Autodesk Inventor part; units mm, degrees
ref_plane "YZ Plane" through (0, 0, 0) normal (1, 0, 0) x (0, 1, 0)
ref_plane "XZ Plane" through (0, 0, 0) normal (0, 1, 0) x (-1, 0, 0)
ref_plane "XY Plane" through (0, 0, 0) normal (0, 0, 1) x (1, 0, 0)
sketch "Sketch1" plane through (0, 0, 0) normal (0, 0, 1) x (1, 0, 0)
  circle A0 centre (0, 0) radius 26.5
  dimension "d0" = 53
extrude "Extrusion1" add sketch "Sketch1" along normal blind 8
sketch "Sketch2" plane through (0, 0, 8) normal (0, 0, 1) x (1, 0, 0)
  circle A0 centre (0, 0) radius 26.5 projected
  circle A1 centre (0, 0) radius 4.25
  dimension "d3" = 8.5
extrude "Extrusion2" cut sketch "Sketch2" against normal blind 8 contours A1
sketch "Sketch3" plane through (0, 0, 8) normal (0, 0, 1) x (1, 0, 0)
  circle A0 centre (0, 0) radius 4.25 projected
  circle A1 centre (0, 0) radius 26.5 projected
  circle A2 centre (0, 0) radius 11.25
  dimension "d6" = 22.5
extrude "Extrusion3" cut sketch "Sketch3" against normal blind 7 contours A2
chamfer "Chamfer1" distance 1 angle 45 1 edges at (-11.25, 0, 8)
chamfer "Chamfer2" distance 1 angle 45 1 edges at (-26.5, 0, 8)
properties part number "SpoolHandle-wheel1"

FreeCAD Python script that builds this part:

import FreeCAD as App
import Part
import Sketcher

V = App.Vector


def edges_at(feature, points):
    """Names of the edges that pass closest to the given points."""
    edges = feature.Shape.Edges
    near = lambda p: min(range(len(edges)), key=lambda i: edges[i].distToShape(Part.Vertex(*p))[0])
    return sorted({f"Edge{near(p) + 1}" for p in points})

doc = App.newDocument("Part")
body = doc.addObject("PartDesign::Body", "Body")

# Sketch on XY plane
sketch1 = body.newObject("Sketcher::SketchObject", "Sketch")
sketch1.AttachmentSupport = (doc.getObject("XY_Plane"), [""])
sketch1.MapMode = "FlatFace"
sketch1.addGeometry(Part.Circle(V(0, 0, 0), V(0, 0, 1), 26), False)
sketch1.addConstraint(Sketcher.Constraint("Coincident", 0, 3, -1, 1))
sketch1.addConstraint(Sketcher.Constraint("Diameter", 0, 53.0))
pad1 = body.newObject("PartDesign::Pad", "Pad")
pad1.Profile = sketch1
pad1.Length = 8

# Sketch on XY plane
sketch2 = body.newObject("Sketcher::SketchObject", "Sketch001")
sketch2.AttachmentSupport = (doc.getObject("XY_Plane"), [""])
sketch2.MapMode = "FlatFace"
sketch2.AttachmentOffset = App.Placement(V(0, 0, 8), App.Rotation())
sketch2.addGeometry(Part.Circle(V(0, 0, 0), V(0, 0, 1), 4.2), False)
sketch2.addConstraint(Sketcher.Constraint("Coincident", 0, 3, -1, 1))
sketch2.addConstraint(Sketcher.Constraint("Diameter", 0, 8.5))
pocket1 = body.newObject("PartDesign::Pocket", "Pocket")
pocket1.Profile = sketch2
pocket1.Length = 8

# Sketch on XY plane
sketch3 = body.newObject("Sketcher::SketchObject", "Sketch002")
sketch3.AttachmentSupport = (doc.getObject("XY_Plane"), [""])
sketch3.MapMode = "FlatFace"
sketch3.AttachmentOffset = App.Placement(V(0, 0, 8), App.Rotation())
sketch3.addGeometry(Part.Circle(V(0, 0, 0), V(0, 0, 1), 11.2), False)
sketch3.addGeometry(Part.Circle(V(0, 0, 0), V(0, 0, 1), 4.2), False)
sketch3.addConstraint(Sketcher.Constraint("Coincident", 0, 3, -1, 1))
sketch3.addConstraint(Sketcher.Constraint("Coincident", 1, 3, -1, 1))
sketch3.addConstraint(Sketcher.Constraint("Diameter", 0, 22.5))
sketch3.addConstraint(Sketcher.Constraint("Diameter", 1, 8.5))
pocket2 = body.newObject("PartDesign::Pocket", "Pocket001")
pocket2.Profile = sketch3
pocket2.Length = 7
doc.recompute()

chamfer = body.newObject("PartDesign::Chamfer", "Chamfer")
chamfer.Base = (pocket2, edges_at(pocket2, [(-11.25, 0, 8)]))
chamfer.Size = 1
doc.recompute()

chamfer2 = body.newObject("PartDesign::Chamfer", "Chamfer001")
chamfer2.Base = (chamfer, edges_at(chamfer, [(-26.5, 0, 8)]))
chamfer2.Size = 1

doc.recompute()
